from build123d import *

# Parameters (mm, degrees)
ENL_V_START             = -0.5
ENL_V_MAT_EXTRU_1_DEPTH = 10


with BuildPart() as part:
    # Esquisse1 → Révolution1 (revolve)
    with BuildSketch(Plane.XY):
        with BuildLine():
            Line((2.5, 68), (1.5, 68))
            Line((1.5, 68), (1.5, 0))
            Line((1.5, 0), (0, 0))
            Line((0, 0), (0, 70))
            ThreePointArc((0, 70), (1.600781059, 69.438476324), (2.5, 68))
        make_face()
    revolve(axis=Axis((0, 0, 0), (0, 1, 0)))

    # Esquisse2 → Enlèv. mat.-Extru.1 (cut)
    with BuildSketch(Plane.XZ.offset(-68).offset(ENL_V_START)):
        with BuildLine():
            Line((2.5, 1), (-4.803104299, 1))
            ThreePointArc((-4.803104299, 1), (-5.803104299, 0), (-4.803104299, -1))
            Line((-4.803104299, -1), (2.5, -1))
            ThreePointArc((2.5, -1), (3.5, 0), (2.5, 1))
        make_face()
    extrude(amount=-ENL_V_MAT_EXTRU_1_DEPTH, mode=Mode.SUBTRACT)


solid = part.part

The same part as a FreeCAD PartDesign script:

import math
import FreeCAD as App
import Part
import Sketcher
Q = App.Units.Quantity

doc = App.newDocument("Part")
params = doc.addObject("Spreadsheet::Sheet", "Params")
for row, (alias, value) in enumerate([
    ("sketch1_width", "1 mm"),
    ("sketch1_height", "70 mm"),
    ("sketch1_height2", "68 mm"),
    ("sketch1_width2", "1.5 mm"),
    ("revolution_angle", "360 deg"),
    ("sketch2_radius", "1 mm"),
    ("pocket1_length", "10 mm"),
], start=1):
    params.set(f"A{row}", alias)
    params.set(f"B{row}", "=" + value)
    params.setAlias(f"B{row}", alias)

body = doc.addObject("PartDesign::Body", "Body")

sketch1 = doc.addObject("Sketcher::SketchObject", "Sketch")
body.addObject(sketch1)
sketch1.AttachmentSupport = (doc.XY_Plane, [""])
sketch1.MapMode = "FlatFace"
sketch1.addGeometry([
    Part.LineSegment(App.Vector(1.5, 68, 0), App.Vector(2.5, 68, 0)),
    Part.ArcOfCircle(Part.Circle(App.Vector(0, 67.4375, 0), App.Vector(0, 0, 1), 2.5625), math.radians(12.680384), math.radians(90)),
    Part.LineSegment(App.Vector(0, 70, 0), App.Vector(0, 0, 0)),
    Part.LineSegment(App.Vector(0, 0, 0), App.Vector(1.5, 0, 0)),
    Part.LineSegment(App.Vector(1.5, 0, 0), App.Vector(1.5, 68, 0)),
], False)
sketch1.addConstraint([
    Sketcher.Constraint("Coincident", 0, 2, 1, 1),
    Sketcher.Constraint("Coincident", 1, 2, 2, 1),
    Sketcher.Constraint("Coincident", 2, 2, 3, 1),
    Sketcher.Constraint("Coincident", 3, 2, 4, 1),
    Sketcher.Constraint("Coincident", 4, 2, 0, 1),
    Sketcher.Constraint("Horizontal", 0),
    Sketcher.Constraint("Vertical", 2),
    Sketcher.Constraint("Horizontal", 3),
    Sketcher.Constraint("Vertical", 4),
    Sketcher.Constraint("Coincident", 2, 2, -1, 1),
    Sketcher.Constraint("PointOnObject", 1, 3, -2),
    Sketcher.Constraint("DistanceX", 0, 1, 0, 2, Q("1 mm")),
    Sketcher.Constraint("DistanceY", 2, 2, 2, 1, Q("70 mm")),
    Sketcher.Constraint("DistanceY", 4, 1, 4, 2, Q("68 mm")),
    Sketcher.Constraint("DistanceX", 3, 1, 3, 2, Q("1.5 mm")),
])
sketch1.setExpression("Constraints[11]", "Params.sketch1_width")
sketch1.setExpression("Constraints[12]", "Params.sketch1_height")
sketch1.setExpression("Constraints[13]", "Params.sketch1_height2")
sketch1.setExpression("Constraints[14]", "Params.sketch1_width2")
revolution = doc.addObject("PartDesign::Revolution", "Revolution")
body.addObject(revolution)
revolution.Profile = sketch1
revolution.ReferenceAxis = (sketch1, ["V_Axis"])
revolution.setExpression("Angle", "Params.revolution_angle")

sketch2 = doc.addObject("Sketcher::SketchObject", "Sketch001")
body.addObject(sketch2)
sketch2.AttachmentSupport = (doc.XZ_Plane, [""])
sketch2.MapMode = "FlatFace"
sketch2.AttachmentOffset = App.Placement(App.Vector(0, 0, -68.5), App.Rotation())
sketch2.addGeometry([
    Part.LineSegment(App.Vector(2.5, 1, 0), App.Vector(-4.803104, 1, 0)),
    Part.ArcOfCircle(Part.Circle(App.Vector(-4.803104, 0, 0), App.Vector(0, 0, 1), 1), math.radians(90), math.radians(270)),
    Part.LineSegment(App.Vector(-4.803104, -1, 0), App.Vector(2.5, -1, 0)),
    Part.ArcOfCircle(Part.Circle(App.Vector(2.5, 0, 0), App.Vector(0, 0, 1), 1), math.radians(-90), math.radians(90)),
], False)
sketch2.addConstraint([
    Sketcher.Constraint("Tangent", 0, 2, 1, 1),
    Sketcher.Constraint("Tangent", 1, 2, 2, 1),
    Sketcher.Constraint("Tangent", 2, 2, 3, 1),
    Sketcher.Constraint("Tangent", 3, 2, 0, 1),
    Sketcher.Constraint("Horizontal", 0),
    Sketcher.Constraint("Horizontal", 2),
    Sketcher.Constraint("PointOnObject", 1, 3, -1),
    Sketcher.Constraint("Radius", 1, Q("1 mm")),
    Sketcher.Constraint("DistanceX", -1, 1, 3, 3, Q("2.5 mm")),
    Sketcher.Constraint("DistanceX", 0, 2, 0, 1, Q("7.303104 mm")),
])
sketch2.setExpression("Constraints[7]", "Params.sketch2_radius")
pocket1 = doc.addObject("PartDesign::Pocket", "Pocket")
body.addObject(pocket1)
pocket1.Profile = sketch2
pocket1.setExpression("Length", "Params.pocket1_length")

doc.recompute()
